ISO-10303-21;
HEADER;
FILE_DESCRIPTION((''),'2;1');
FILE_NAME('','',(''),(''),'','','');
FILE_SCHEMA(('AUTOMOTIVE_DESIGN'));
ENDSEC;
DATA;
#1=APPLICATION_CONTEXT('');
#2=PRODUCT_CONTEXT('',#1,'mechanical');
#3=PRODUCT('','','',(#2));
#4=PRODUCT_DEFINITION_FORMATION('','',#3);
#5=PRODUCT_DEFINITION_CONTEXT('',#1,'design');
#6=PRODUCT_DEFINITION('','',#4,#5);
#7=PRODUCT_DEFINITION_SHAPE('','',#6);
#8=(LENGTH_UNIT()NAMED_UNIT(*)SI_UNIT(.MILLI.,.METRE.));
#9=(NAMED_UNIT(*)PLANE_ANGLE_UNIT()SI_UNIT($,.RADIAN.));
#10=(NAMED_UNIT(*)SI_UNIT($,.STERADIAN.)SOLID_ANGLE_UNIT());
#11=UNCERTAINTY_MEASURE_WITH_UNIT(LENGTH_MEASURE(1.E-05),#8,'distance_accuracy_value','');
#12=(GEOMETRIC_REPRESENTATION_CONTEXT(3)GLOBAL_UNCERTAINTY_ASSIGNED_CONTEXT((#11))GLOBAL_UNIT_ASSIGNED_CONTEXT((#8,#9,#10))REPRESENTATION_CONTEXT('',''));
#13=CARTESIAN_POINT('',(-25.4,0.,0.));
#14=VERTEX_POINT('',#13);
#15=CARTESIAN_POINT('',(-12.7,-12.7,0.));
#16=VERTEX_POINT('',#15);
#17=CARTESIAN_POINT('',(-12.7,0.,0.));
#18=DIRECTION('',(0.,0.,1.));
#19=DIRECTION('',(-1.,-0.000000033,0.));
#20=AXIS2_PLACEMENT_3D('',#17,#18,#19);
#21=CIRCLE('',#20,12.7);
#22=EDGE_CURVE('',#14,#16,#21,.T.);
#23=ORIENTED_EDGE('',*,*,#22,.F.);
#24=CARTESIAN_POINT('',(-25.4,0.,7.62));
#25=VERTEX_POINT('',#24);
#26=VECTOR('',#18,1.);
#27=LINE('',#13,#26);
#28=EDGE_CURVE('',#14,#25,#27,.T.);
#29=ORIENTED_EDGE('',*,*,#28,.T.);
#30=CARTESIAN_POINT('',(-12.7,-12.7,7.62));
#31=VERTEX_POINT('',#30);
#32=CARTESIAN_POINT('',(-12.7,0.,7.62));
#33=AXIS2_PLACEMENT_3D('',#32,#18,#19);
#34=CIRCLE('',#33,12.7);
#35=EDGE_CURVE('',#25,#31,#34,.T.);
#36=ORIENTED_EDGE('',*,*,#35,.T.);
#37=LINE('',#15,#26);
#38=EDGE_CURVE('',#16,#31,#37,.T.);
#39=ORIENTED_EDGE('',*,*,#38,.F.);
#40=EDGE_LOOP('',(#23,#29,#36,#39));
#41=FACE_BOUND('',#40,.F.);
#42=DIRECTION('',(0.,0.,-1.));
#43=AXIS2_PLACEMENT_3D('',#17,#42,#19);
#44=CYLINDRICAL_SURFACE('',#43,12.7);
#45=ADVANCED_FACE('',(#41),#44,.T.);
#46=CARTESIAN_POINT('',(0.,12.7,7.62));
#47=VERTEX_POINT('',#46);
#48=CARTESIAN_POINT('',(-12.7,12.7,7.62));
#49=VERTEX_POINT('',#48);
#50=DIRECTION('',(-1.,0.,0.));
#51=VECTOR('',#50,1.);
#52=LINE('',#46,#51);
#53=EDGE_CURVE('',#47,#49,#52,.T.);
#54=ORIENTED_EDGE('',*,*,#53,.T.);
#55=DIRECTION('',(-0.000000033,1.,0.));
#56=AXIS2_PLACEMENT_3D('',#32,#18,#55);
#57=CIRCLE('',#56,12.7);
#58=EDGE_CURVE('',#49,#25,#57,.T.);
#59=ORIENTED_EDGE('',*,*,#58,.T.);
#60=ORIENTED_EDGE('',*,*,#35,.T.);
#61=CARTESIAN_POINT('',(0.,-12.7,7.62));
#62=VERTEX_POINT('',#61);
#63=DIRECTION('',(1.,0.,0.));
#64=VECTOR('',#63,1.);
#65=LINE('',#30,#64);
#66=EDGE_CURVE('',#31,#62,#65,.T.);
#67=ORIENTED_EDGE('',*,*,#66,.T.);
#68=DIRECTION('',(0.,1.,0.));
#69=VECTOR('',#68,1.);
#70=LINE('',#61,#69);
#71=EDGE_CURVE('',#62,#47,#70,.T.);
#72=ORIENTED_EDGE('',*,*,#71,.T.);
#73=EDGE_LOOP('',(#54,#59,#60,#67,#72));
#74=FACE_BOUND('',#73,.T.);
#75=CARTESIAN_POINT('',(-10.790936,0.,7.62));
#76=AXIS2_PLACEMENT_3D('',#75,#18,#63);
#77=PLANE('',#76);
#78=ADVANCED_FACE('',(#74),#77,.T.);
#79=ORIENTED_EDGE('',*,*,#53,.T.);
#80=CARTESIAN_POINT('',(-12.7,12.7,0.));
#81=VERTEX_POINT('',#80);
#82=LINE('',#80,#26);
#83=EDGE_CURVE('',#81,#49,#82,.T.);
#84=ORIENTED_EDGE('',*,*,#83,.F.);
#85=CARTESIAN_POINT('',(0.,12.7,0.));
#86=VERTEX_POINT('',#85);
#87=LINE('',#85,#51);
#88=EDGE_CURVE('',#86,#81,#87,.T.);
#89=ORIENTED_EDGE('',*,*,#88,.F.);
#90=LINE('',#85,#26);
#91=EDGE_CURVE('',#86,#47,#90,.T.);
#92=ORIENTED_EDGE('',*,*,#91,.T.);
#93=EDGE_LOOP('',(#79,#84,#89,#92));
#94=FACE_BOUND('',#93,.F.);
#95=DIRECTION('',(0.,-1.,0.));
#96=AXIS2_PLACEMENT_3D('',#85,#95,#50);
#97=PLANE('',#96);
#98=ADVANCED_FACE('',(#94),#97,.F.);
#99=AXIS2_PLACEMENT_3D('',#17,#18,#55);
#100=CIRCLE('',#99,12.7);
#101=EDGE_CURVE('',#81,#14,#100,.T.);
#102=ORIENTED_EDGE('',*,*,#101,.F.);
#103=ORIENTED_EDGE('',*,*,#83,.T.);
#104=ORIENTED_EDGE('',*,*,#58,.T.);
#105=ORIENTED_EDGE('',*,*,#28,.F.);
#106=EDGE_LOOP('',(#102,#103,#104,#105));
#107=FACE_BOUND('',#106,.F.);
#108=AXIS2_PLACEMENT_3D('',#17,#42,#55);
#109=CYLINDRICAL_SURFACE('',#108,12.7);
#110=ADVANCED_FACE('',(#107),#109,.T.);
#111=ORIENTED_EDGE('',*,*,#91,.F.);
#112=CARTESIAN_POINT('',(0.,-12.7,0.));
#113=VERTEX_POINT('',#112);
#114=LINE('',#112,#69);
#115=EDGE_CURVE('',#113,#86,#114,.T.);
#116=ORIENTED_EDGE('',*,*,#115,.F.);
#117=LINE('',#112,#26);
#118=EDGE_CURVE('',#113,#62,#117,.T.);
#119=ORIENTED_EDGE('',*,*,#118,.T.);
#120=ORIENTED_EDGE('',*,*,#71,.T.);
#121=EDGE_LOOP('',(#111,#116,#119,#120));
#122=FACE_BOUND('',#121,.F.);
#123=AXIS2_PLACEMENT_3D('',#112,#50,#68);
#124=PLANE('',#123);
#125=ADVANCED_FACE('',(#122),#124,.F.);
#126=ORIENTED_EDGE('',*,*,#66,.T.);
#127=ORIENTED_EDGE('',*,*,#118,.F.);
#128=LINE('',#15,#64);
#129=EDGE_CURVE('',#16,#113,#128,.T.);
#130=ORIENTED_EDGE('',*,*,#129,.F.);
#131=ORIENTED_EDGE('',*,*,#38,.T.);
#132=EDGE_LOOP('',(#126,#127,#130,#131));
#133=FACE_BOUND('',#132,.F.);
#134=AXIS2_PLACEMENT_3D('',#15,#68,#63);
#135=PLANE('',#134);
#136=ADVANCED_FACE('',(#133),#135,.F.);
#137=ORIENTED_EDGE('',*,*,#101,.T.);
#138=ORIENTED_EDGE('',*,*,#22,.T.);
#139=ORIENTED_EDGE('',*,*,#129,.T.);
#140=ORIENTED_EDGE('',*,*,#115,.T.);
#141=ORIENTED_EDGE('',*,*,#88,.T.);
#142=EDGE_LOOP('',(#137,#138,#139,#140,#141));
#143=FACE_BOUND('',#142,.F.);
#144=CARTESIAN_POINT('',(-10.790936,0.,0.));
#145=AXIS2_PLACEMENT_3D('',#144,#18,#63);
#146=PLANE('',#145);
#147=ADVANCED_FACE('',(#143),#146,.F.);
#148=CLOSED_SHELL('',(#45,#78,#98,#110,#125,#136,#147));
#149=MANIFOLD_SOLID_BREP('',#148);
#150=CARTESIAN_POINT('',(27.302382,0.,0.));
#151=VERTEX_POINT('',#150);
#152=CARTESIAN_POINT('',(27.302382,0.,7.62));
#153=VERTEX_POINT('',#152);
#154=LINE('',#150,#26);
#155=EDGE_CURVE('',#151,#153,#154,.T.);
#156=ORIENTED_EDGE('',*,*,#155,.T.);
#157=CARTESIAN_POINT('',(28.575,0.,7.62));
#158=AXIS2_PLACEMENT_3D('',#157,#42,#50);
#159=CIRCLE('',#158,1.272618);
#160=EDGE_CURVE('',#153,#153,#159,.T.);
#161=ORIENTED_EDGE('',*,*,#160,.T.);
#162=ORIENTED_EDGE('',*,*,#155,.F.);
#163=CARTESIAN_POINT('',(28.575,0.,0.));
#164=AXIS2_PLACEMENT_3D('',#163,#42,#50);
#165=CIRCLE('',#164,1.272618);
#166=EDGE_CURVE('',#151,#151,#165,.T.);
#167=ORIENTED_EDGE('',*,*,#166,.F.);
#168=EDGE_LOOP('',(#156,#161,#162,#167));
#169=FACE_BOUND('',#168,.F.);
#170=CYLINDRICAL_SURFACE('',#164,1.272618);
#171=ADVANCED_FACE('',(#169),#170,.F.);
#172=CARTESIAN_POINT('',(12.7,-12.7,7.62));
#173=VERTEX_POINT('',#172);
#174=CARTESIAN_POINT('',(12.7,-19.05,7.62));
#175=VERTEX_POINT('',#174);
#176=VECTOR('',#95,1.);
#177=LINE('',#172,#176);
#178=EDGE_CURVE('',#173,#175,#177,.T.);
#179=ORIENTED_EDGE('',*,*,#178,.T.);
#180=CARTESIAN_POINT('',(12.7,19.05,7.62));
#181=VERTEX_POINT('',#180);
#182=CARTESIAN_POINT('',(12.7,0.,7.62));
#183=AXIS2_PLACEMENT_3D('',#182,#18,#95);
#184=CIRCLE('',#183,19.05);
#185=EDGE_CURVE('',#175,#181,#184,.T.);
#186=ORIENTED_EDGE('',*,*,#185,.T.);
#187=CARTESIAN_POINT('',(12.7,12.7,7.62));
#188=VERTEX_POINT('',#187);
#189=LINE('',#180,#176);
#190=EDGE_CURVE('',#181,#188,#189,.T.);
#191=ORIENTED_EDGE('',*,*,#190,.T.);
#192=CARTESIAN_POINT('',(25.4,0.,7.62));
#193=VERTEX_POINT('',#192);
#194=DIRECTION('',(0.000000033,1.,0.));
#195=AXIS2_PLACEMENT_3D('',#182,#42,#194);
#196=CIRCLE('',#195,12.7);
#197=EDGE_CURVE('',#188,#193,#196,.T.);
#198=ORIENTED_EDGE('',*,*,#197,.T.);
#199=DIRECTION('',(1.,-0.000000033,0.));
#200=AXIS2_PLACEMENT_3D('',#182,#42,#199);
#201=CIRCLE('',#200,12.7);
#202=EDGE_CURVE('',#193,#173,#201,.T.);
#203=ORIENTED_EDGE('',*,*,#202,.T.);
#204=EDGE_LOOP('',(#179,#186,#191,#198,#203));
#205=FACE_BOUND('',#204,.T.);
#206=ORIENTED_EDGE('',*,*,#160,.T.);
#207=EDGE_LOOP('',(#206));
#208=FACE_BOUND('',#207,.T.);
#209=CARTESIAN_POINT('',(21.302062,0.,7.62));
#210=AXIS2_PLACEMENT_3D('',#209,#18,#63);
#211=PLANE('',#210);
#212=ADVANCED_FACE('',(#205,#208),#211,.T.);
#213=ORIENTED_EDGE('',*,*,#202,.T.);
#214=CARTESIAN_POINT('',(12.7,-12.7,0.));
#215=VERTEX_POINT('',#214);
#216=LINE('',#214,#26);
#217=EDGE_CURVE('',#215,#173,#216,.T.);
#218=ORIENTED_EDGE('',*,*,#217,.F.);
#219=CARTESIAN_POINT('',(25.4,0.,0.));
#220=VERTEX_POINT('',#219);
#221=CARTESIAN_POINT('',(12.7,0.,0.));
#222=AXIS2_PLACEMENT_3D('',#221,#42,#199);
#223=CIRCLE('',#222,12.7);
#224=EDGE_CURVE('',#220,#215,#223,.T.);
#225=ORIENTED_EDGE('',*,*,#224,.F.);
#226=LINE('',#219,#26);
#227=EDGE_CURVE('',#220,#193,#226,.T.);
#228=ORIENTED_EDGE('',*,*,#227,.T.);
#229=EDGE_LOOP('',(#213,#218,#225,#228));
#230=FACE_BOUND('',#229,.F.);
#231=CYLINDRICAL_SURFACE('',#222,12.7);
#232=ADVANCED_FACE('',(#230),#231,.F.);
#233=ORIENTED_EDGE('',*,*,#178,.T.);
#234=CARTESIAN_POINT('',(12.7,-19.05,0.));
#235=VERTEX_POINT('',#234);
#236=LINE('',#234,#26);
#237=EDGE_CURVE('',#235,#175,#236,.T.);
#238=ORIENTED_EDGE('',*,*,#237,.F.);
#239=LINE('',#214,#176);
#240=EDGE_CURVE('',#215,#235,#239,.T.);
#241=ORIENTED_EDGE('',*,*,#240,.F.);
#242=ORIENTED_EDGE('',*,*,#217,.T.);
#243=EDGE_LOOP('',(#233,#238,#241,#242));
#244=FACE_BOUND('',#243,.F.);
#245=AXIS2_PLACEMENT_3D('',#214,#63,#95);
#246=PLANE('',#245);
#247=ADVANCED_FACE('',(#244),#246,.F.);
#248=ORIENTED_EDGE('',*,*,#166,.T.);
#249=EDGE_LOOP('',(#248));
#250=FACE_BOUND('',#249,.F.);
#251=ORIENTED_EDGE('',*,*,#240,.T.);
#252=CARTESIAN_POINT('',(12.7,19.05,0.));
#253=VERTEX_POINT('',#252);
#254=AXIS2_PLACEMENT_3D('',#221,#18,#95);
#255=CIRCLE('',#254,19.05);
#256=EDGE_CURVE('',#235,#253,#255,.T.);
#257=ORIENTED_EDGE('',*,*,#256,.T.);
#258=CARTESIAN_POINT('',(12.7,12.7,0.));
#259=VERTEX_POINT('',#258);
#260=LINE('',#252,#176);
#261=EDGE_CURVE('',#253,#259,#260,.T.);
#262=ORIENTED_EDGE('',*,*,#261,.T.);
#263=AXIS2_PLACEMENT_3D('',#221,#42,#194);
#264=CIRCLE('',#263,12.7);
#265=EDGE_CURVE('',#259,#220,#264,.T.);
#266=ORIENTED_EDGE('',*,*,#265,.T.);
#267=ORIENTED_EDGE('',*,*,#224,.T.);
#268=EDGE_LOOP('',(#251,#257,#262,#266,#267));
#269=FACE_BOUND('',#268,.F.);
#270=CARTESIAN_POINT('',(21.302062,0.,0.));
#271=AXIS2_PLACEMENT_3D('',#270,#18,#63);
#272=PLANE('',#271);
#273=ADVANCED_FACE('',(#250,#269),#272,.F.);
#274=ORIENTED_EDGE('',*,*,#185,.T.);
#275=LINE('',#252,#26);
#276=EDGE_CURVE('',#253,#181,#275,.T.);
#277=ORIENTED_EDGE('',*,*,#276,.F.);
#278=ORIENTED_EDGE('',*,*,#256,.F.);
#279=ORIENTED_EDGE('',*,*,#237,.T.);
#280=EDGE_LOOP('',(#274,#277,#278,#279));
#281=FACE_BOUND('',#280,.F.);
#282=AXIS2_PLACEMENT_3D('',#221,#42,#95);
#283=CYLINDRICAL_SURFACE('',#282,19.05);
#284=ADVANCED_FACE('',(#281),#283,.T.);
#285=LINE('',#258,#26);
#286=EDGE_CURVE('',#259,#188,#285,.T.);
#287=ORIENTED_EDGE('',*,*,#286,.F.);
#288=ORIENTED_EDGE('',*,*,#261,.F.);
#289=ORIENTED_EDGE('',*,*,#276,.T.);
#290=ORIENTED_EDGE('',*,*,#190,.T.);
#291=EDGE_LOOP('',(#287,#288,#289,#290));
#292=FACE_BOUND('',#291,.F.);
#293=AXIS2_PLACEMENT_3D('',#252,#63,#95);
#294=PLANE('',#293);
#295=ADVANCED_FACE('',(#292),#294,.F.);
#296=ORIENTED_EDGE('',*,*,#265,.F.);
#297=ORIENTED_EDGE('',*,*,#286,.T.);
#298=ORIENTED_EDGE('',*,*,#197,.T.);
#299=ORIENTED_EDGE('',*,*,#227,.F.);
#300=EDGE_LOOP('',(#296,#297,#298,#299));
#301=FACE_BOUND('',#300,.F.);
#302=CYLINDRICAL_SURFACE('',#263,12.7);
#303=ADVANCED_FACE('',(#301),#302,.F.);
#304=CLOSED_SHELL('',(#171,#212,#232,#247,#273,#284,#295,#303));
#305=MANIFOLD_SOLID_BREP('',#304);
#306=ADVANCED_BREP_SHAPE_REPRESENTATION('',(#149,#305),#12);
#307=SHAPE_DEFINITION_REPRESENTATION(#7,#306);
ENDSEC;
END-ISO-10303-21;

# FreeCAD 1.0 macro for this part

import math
import FreeCAD as App
import Part
import Sketcher
from FreeCAD import Vector
Q = App.Units.Quantity

doc = App.newDocument("Part")
body = doc.addObject("PartDesign::Body", "Body")
body.AllowCompound = True

# Sketch on XY plane
sketch1 = body.newObject("Sketcher::SketchObject", "Sketch")
sketch1.AttachmentSupport = (doc.getObject("XY_Plane"), [""])
sketch1.MapMode = "FlatFace"
sketch1.addGeometry([
    Part.LineSegment(Vector(0, -12.7, 0), Vector(0, 12.7, 0)),  # 0
    Part.LineSegment(Vector(0, 12.7, 0), Vector(-12.7, 12.7, 0)),  # 1
    Part.ArcOfCircle(Part.Circle(Vector(-12.7, 0, 0), Vector(0, 0, 1), 12.7), math.radians(90.000002), math.radians(179.999998)),  # 2
    Part.ArcOfCircle(Part.Circle(Vector(-12.7, 0, 0), Vector(0, 0, 1), 12.7), math.radians(-179.999998), math.radians(-90.000002)),  # 3
    Part.LineSegment(Vector(-12.7, -12.7, 0), Vector(0, -12.7, 0)),  # 4
    Part.LineSegment(Vector(12.7, 19.05, 0), Vector(12.7, 12.7, 0)),  # 5
    Part.ArcOfCircle(Part.Circle(Vector(12.7, 0, 0), Vector(0, 0, 1), 12.7), math.radians(0.000002), math.radians(89.999998)),  # 6
    Part.ArcOfCircle(Part.Circle(Vector(12.7, 0, 0), Vector(0, 0, 1), 12.7), math.radians(-89.999998), math.radians(-0.000002)),  # 7
    Part.LineSegment(Vector(12.7, -12.7, 0), Vector(12.7, -19.05, 0)),  # 8
    Part.ArcOfCircle(Part.Circle(Vector(12.7, 0, 0), Vector(0, 0, 1), 19.05), math.radians(-90), math.radians(90)),  # 9
    Part.Circle(Vector(28.575, 0, 0), Vector(0, 0, 1), 1.272618),  # 10
], False)
sketch1.addConstraint([
    Sketcher.Constraint("Coincident", 0, 2, 1, 1),
    Sketcher.Constraint("Tangent", 1, 2, 2, 1),
    Sketcher.Constraint("Tangent", 2, 2, 3, 1),
    Sketcher.Constraint("Tangent", 3, 2, 4, 1),
    Sketcher.Constraint("Coincident", 4, 2, 0, 1),
    Sketcher.Constraint("Coincident", 5, 2, 6, 2),
    Sketcher.Constraint("Tangent", 6, 1, 7, 2),
    Sketcher.Constraint("Coincident", 7, 1, 8, 1),
    Sketcher.Constraint("Coincident", 8, 2, 9, 1),
    Sketcher.Constraint("Coincident", 9, 2, 5, 1),
    Sketcher.Constraint("Vertical", 0),
    Sketcher.Constraint("Horizontal", 1),
    Sketcher.Constraint("Horizontal", 4),
    Sketcher.Constraint("Vertical", 5),
    Sketcher.Constraint("Vertical", 8),
    Sketcher.Constraint("Coincident", 9, 3, 6, 3),
    Sketcher.Constraint("Equal", 2, 3),
    Sketcher.Constraint("Equal", 3, 6),
    Sketcher.Constraint("Equal", 6, 7),
    Sketcher.Constraint("Symmetric", 2, 3, 6, 3, -1, 1),
    Sketcher.Constraint("Symmetric", 0, 2, 4, 2, -1, 1),
    Sketcher.Constraint("PointOnObject", 10, 3, -1),
    Sketcher.Constraint("PointOnObject", 2, 2, -1),
    Sketcher.Constraint("PointOnObject", 6, 1, -1),
    Sketcher.Constraint("Vertical", 9, 3, 5, 2),
    Sketcher.Constraint("Vertical", 5, 2, 7, 1),
    Sketcher.Constraint("Radius", 2, Q("0.5 in")),
    Sketcher.Constraint("Radius", 9, Q("0.75 in")),
    Sketcher.Constraint("DistanceX", 1, 2, 1, 1, Q("0.5 in")),
    Sketcher.Constraint("DistanceX", -1, 1, 10, 3, Q("1.125 in")),
    Sketcher.Constraint("Diameter", 10, Q("2.545236 mm")),
])
pad1 = body.newObject("PartDesign::Pad", "Pad")
pad1.Profile = sketch1
pad1.Length = Q("0.3 in")

doc.recompute()
